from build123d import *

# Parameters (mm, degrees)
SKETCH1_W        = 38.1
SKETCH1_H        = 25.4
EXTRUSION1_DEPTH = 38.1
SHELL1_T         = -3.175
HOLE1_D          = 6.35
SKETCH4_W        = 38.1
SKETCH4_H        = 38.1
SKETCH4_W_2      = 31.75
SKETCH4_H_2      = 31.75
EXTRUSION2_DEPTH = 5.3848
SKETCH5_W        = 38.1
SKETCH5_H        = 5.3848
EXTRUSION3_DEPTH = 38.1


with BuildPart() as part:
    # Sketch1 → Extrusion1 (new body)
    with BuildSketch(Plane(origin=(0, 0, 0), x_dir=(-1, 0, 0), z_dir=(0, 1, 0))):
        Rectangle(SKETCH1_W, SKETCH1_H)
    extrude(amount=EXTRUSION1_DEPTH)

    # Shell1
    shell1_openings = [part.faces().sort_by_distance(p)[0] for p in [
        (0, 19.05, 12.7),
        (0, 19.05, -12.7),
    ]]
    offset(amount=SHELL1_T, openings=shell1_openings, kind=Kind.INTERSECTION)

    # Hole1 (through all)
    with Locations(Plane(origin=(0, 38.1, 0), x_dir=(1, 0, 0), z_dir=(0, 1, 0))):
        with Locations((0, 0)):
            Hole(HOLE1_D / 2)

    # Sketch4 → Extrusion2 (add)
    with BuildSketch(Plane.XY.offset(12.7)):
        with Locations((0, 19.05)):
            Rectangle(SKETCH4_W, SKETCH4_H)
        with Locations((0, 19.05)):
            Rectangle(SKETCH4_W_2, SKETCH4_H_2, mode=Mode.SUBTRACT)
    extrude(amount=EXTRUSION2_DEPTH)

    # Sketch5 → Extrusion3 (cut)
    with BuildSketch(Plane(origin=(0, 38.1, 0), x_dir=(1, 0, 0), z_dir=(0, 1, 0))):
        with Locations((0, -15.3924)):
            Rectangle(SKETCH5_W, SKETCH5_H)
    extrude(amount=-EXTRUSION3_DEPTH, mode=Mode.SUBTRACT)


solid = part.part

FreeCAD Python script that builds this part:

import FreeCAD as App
import Part
import Sketcher

V = App.Vector
Q = App.Units.Quantity


def faces_at(feature, points):
    """Names of the faces that lie closest to the given points."""
    faces = feature.Shape.Faces
    near = lambda p: min(range(len(faces)), key=lambda i: faces[i].distToShape(Part.Vertex(*p))[0])
    return sorted({f"Face{near(p) + 1}" for p in points})


def add_polygon(sketch, points):
    """Adds a closed chain of lines whose ends are joined by coincident constraints."""
    first, n = sketch.GeometryCount, len(points)
    for a, b in zip(points, points[1:] + points[:1]):
        sketch.addGeometry(Part.LineSegment(App.Vector(*a, 0), App.Vector(*b, 0)), False)
    for i in range(n):
        sketch.addConstraint(Sketcher.Constraint("Coincident", first + i, 2, first + (i + 1) % n, 1))

doc = App.newDocument("Part")
body = doc.addObject("PartDesign::Body", "Body")

# Sketch on XZ plane
sketch1 = body.newObject("Sketcher::SketchObject", "Sketch")
sketch1.AttachmentSupport = (doc.getObject("XZ_Plane"), [""])
sketch1.MapMode = "FlatFace"
add_polygon(sketch1, [(19, 13), (19, -13), (-19, -13), (-19, 13)])  # lines 0-3
sketch1.addConstraint(Sketcher.Constraint("Vertical", 0))
sketch1.addConstraint(Sketcher.Constraint("Horizontal", 1))
sketch1.addConstraint(Sketcher.Constraint("Vertical", 2))
sketch1.addConstraint(Sketcher.Constraint("Horizontal", 3))
sketch1.addConstraint(Sketcher.Constraint("Symmetric", 0, 2, 2, 2, -1, 1))
sketch1.addConstraint(Sketcher.Constraint("DistanceY", 0, 2, 0, 1, Q("1 in")))
sketch1.addConstraint(Sketcher.Constraint("DistanceX", 1, 2, 1, 1, Q("1.5 in")))
pad1 = body.newObject("PartDesign::Pad", "Pad")
pad1.Profile = sketch1
pad1.Length = Q("1.5 in")
pad1.Reversed = True
doc.recompute()

thickness = body.newObject("PartDesign::Thickness", "Thickness")
thickness.Base = (pad1, faces_at(pad1, [(0, 19.05, 12.7), (0, 19.05, -12.7)]))
thickness.Value = Q("0.125 in")
thickness.Reversed = True
thickness.Join = "Intersection"

# Sketch on XZ plane
sketch2 = body.newObject("Sketcher::SketchObject", "Sketch001")
sketch2.AttachmentSupport = (doc.getObject("XZ_Plane"), [""])
sketch2.MapMode = "FlatFace"
sketch2.AttachmentOffset = App.Placement(V(0, 0, -1.5 * 25.4), App.Rotation())
sketch2.addGeometry(Part.Circle(V(0, 0, 0), V(0, 0, 1), 3.2), False)
sketch2.addConstraint(Sketcher.Constraint("Coincident", 0, 3, -1, 1))
sketch2.addConstraint(Sketcher.Constraint("Diameter", 0, Q("0.25 in")))
doc.recompute()
hole = body.newObject("PartDesign::Hole", "Hole")
hole.Profile = sketch2
hole.ThreadType = "None"
hole.Diameter = Q("0.25 in")
hole.DepthType = "ThroughAll"
hole.Reversed = True

# Sketch on XY plane
sketch3 = body.newObject("Sketcher::SketchObject", "Sketch002")
sketch3.AttachmentSupport = (doc.getObject("XY_Plane"), [""])
sketch3.MapMode = "FlatFace"
sketch3.AttachmentOffset = App.Placement(V(0, 0, 0.5 * 25.4), App.Rotation())
add_polygon(sketch3, [(-19, 38), (-19, 0), (19, 0), (19, 38)])  # lines 0-3
add_polygon(sketch3, [(16, 3), (-16, 3), (-16, 35), (16, 35)])  # lines 4-7
sketch3.addConstraint(Sketcher.Constraint("Vertical", 0))
sketch3.addConstraint(Sketcher.Constraint("Horizontal", 1))
sketch3.addConstraint(Sketcher.Constraint("Vertical", 2))
sketch3.addConstraint(Sketcher.Constraint("Horizontal", 3))
sketch3.addConstraint(Sketcher.Constraint("Horizontal", 4))
sketch3.addConstraint(Sketcher.Constraint("Vertical", 5))
sketch3.addConstraint(Sketcher.Constraint("Horizontal", 6))
sketch3.addConstraint(Sketcher.Constraint("Vertical", 7))
sketch3.addConstraint(Sketcher.Constraint("Symmetric", 0, 2, 1, 2, -1, 1))
sketch3.addConstraint(Sketcher.Constraint("Equal", 3, 0))
sketch3.addConstraint(Sketcher.Constraint("Equal", 6, 5))
sketch3.addConstraint(Sketcher.Constraint("DistanceX", 1, 1, 1, 2, Q("1.5 in")))
sketch3.addConstraint(Sketcher.Constraint("DistanceX", 4, 2, 4, 1, Q("1.25 in")))
sketch3.addConstraint(Sketcher.Constraint("DistanceX", 4, 2, -1, 1, Q("0.625 in")))
sketch3.addConstraint(Sketcher.Constraint("DistanceY", -1, 1, 4, 2, Q("0.125 in")))
pad2 = body.newObject("PartDesign::Pad", "Pad001")
pad2.Profile = sketch3
pad2.Length = Q("0.212 in")

# Sketch on XZ plane
sketch4 = body.newObject("Sketcher::SketchObject", "Sketch003")
sketch4.AttachmentSupport = (doc.getObject("XZ_Plane"), [""])
sketch4.MapMode = "FlatFace"
sketch4.AttachmentOffset = App.Placement(V(0, 0, -1.5 * 25.4), App.Rotation())
add_polygon(sketch4, [(-19, 13), (-19, 18), (19, 18), (19, 13)])  # lines 0-3
sketch4.addConstraint(Sketcher.Constraint("Vertical", 0))
sketch4.addConstraint(Sketcher.Constraint("Horizontal", 1))
sketch4.addConstraint(Sketcher.Constraint("Vertical", 2))
sketch4.addConstraint(Sketcher.Constraint("Horizontal", 3))
sketch4.addConstraint(Sketcher.Constraint("DistanceX", 1, 1, 1, 2, Q("1.5 in")))
sketch4.addConstraint(Sketcher.Constraint("DistanceY", -1, 1, 2, 2, Q("0.5 in")))
sketch4.addConstraint(Sketcher.Constraint("DistanceY", 0, 1, 0, 2, Q("0.212 in")))
sketch4.addConstraint(Sketcher.Constraint("DistanceX", 0, 2, -1, 1, Q("0.75 in")))
pocket1 = body.newObject("PartDesign::Pocket", "Pocket")
pocket1.Profile = sketch4
pocket1.Length = Q("1.5 in")
pocket1.Reversed = True

doc.recompute()
